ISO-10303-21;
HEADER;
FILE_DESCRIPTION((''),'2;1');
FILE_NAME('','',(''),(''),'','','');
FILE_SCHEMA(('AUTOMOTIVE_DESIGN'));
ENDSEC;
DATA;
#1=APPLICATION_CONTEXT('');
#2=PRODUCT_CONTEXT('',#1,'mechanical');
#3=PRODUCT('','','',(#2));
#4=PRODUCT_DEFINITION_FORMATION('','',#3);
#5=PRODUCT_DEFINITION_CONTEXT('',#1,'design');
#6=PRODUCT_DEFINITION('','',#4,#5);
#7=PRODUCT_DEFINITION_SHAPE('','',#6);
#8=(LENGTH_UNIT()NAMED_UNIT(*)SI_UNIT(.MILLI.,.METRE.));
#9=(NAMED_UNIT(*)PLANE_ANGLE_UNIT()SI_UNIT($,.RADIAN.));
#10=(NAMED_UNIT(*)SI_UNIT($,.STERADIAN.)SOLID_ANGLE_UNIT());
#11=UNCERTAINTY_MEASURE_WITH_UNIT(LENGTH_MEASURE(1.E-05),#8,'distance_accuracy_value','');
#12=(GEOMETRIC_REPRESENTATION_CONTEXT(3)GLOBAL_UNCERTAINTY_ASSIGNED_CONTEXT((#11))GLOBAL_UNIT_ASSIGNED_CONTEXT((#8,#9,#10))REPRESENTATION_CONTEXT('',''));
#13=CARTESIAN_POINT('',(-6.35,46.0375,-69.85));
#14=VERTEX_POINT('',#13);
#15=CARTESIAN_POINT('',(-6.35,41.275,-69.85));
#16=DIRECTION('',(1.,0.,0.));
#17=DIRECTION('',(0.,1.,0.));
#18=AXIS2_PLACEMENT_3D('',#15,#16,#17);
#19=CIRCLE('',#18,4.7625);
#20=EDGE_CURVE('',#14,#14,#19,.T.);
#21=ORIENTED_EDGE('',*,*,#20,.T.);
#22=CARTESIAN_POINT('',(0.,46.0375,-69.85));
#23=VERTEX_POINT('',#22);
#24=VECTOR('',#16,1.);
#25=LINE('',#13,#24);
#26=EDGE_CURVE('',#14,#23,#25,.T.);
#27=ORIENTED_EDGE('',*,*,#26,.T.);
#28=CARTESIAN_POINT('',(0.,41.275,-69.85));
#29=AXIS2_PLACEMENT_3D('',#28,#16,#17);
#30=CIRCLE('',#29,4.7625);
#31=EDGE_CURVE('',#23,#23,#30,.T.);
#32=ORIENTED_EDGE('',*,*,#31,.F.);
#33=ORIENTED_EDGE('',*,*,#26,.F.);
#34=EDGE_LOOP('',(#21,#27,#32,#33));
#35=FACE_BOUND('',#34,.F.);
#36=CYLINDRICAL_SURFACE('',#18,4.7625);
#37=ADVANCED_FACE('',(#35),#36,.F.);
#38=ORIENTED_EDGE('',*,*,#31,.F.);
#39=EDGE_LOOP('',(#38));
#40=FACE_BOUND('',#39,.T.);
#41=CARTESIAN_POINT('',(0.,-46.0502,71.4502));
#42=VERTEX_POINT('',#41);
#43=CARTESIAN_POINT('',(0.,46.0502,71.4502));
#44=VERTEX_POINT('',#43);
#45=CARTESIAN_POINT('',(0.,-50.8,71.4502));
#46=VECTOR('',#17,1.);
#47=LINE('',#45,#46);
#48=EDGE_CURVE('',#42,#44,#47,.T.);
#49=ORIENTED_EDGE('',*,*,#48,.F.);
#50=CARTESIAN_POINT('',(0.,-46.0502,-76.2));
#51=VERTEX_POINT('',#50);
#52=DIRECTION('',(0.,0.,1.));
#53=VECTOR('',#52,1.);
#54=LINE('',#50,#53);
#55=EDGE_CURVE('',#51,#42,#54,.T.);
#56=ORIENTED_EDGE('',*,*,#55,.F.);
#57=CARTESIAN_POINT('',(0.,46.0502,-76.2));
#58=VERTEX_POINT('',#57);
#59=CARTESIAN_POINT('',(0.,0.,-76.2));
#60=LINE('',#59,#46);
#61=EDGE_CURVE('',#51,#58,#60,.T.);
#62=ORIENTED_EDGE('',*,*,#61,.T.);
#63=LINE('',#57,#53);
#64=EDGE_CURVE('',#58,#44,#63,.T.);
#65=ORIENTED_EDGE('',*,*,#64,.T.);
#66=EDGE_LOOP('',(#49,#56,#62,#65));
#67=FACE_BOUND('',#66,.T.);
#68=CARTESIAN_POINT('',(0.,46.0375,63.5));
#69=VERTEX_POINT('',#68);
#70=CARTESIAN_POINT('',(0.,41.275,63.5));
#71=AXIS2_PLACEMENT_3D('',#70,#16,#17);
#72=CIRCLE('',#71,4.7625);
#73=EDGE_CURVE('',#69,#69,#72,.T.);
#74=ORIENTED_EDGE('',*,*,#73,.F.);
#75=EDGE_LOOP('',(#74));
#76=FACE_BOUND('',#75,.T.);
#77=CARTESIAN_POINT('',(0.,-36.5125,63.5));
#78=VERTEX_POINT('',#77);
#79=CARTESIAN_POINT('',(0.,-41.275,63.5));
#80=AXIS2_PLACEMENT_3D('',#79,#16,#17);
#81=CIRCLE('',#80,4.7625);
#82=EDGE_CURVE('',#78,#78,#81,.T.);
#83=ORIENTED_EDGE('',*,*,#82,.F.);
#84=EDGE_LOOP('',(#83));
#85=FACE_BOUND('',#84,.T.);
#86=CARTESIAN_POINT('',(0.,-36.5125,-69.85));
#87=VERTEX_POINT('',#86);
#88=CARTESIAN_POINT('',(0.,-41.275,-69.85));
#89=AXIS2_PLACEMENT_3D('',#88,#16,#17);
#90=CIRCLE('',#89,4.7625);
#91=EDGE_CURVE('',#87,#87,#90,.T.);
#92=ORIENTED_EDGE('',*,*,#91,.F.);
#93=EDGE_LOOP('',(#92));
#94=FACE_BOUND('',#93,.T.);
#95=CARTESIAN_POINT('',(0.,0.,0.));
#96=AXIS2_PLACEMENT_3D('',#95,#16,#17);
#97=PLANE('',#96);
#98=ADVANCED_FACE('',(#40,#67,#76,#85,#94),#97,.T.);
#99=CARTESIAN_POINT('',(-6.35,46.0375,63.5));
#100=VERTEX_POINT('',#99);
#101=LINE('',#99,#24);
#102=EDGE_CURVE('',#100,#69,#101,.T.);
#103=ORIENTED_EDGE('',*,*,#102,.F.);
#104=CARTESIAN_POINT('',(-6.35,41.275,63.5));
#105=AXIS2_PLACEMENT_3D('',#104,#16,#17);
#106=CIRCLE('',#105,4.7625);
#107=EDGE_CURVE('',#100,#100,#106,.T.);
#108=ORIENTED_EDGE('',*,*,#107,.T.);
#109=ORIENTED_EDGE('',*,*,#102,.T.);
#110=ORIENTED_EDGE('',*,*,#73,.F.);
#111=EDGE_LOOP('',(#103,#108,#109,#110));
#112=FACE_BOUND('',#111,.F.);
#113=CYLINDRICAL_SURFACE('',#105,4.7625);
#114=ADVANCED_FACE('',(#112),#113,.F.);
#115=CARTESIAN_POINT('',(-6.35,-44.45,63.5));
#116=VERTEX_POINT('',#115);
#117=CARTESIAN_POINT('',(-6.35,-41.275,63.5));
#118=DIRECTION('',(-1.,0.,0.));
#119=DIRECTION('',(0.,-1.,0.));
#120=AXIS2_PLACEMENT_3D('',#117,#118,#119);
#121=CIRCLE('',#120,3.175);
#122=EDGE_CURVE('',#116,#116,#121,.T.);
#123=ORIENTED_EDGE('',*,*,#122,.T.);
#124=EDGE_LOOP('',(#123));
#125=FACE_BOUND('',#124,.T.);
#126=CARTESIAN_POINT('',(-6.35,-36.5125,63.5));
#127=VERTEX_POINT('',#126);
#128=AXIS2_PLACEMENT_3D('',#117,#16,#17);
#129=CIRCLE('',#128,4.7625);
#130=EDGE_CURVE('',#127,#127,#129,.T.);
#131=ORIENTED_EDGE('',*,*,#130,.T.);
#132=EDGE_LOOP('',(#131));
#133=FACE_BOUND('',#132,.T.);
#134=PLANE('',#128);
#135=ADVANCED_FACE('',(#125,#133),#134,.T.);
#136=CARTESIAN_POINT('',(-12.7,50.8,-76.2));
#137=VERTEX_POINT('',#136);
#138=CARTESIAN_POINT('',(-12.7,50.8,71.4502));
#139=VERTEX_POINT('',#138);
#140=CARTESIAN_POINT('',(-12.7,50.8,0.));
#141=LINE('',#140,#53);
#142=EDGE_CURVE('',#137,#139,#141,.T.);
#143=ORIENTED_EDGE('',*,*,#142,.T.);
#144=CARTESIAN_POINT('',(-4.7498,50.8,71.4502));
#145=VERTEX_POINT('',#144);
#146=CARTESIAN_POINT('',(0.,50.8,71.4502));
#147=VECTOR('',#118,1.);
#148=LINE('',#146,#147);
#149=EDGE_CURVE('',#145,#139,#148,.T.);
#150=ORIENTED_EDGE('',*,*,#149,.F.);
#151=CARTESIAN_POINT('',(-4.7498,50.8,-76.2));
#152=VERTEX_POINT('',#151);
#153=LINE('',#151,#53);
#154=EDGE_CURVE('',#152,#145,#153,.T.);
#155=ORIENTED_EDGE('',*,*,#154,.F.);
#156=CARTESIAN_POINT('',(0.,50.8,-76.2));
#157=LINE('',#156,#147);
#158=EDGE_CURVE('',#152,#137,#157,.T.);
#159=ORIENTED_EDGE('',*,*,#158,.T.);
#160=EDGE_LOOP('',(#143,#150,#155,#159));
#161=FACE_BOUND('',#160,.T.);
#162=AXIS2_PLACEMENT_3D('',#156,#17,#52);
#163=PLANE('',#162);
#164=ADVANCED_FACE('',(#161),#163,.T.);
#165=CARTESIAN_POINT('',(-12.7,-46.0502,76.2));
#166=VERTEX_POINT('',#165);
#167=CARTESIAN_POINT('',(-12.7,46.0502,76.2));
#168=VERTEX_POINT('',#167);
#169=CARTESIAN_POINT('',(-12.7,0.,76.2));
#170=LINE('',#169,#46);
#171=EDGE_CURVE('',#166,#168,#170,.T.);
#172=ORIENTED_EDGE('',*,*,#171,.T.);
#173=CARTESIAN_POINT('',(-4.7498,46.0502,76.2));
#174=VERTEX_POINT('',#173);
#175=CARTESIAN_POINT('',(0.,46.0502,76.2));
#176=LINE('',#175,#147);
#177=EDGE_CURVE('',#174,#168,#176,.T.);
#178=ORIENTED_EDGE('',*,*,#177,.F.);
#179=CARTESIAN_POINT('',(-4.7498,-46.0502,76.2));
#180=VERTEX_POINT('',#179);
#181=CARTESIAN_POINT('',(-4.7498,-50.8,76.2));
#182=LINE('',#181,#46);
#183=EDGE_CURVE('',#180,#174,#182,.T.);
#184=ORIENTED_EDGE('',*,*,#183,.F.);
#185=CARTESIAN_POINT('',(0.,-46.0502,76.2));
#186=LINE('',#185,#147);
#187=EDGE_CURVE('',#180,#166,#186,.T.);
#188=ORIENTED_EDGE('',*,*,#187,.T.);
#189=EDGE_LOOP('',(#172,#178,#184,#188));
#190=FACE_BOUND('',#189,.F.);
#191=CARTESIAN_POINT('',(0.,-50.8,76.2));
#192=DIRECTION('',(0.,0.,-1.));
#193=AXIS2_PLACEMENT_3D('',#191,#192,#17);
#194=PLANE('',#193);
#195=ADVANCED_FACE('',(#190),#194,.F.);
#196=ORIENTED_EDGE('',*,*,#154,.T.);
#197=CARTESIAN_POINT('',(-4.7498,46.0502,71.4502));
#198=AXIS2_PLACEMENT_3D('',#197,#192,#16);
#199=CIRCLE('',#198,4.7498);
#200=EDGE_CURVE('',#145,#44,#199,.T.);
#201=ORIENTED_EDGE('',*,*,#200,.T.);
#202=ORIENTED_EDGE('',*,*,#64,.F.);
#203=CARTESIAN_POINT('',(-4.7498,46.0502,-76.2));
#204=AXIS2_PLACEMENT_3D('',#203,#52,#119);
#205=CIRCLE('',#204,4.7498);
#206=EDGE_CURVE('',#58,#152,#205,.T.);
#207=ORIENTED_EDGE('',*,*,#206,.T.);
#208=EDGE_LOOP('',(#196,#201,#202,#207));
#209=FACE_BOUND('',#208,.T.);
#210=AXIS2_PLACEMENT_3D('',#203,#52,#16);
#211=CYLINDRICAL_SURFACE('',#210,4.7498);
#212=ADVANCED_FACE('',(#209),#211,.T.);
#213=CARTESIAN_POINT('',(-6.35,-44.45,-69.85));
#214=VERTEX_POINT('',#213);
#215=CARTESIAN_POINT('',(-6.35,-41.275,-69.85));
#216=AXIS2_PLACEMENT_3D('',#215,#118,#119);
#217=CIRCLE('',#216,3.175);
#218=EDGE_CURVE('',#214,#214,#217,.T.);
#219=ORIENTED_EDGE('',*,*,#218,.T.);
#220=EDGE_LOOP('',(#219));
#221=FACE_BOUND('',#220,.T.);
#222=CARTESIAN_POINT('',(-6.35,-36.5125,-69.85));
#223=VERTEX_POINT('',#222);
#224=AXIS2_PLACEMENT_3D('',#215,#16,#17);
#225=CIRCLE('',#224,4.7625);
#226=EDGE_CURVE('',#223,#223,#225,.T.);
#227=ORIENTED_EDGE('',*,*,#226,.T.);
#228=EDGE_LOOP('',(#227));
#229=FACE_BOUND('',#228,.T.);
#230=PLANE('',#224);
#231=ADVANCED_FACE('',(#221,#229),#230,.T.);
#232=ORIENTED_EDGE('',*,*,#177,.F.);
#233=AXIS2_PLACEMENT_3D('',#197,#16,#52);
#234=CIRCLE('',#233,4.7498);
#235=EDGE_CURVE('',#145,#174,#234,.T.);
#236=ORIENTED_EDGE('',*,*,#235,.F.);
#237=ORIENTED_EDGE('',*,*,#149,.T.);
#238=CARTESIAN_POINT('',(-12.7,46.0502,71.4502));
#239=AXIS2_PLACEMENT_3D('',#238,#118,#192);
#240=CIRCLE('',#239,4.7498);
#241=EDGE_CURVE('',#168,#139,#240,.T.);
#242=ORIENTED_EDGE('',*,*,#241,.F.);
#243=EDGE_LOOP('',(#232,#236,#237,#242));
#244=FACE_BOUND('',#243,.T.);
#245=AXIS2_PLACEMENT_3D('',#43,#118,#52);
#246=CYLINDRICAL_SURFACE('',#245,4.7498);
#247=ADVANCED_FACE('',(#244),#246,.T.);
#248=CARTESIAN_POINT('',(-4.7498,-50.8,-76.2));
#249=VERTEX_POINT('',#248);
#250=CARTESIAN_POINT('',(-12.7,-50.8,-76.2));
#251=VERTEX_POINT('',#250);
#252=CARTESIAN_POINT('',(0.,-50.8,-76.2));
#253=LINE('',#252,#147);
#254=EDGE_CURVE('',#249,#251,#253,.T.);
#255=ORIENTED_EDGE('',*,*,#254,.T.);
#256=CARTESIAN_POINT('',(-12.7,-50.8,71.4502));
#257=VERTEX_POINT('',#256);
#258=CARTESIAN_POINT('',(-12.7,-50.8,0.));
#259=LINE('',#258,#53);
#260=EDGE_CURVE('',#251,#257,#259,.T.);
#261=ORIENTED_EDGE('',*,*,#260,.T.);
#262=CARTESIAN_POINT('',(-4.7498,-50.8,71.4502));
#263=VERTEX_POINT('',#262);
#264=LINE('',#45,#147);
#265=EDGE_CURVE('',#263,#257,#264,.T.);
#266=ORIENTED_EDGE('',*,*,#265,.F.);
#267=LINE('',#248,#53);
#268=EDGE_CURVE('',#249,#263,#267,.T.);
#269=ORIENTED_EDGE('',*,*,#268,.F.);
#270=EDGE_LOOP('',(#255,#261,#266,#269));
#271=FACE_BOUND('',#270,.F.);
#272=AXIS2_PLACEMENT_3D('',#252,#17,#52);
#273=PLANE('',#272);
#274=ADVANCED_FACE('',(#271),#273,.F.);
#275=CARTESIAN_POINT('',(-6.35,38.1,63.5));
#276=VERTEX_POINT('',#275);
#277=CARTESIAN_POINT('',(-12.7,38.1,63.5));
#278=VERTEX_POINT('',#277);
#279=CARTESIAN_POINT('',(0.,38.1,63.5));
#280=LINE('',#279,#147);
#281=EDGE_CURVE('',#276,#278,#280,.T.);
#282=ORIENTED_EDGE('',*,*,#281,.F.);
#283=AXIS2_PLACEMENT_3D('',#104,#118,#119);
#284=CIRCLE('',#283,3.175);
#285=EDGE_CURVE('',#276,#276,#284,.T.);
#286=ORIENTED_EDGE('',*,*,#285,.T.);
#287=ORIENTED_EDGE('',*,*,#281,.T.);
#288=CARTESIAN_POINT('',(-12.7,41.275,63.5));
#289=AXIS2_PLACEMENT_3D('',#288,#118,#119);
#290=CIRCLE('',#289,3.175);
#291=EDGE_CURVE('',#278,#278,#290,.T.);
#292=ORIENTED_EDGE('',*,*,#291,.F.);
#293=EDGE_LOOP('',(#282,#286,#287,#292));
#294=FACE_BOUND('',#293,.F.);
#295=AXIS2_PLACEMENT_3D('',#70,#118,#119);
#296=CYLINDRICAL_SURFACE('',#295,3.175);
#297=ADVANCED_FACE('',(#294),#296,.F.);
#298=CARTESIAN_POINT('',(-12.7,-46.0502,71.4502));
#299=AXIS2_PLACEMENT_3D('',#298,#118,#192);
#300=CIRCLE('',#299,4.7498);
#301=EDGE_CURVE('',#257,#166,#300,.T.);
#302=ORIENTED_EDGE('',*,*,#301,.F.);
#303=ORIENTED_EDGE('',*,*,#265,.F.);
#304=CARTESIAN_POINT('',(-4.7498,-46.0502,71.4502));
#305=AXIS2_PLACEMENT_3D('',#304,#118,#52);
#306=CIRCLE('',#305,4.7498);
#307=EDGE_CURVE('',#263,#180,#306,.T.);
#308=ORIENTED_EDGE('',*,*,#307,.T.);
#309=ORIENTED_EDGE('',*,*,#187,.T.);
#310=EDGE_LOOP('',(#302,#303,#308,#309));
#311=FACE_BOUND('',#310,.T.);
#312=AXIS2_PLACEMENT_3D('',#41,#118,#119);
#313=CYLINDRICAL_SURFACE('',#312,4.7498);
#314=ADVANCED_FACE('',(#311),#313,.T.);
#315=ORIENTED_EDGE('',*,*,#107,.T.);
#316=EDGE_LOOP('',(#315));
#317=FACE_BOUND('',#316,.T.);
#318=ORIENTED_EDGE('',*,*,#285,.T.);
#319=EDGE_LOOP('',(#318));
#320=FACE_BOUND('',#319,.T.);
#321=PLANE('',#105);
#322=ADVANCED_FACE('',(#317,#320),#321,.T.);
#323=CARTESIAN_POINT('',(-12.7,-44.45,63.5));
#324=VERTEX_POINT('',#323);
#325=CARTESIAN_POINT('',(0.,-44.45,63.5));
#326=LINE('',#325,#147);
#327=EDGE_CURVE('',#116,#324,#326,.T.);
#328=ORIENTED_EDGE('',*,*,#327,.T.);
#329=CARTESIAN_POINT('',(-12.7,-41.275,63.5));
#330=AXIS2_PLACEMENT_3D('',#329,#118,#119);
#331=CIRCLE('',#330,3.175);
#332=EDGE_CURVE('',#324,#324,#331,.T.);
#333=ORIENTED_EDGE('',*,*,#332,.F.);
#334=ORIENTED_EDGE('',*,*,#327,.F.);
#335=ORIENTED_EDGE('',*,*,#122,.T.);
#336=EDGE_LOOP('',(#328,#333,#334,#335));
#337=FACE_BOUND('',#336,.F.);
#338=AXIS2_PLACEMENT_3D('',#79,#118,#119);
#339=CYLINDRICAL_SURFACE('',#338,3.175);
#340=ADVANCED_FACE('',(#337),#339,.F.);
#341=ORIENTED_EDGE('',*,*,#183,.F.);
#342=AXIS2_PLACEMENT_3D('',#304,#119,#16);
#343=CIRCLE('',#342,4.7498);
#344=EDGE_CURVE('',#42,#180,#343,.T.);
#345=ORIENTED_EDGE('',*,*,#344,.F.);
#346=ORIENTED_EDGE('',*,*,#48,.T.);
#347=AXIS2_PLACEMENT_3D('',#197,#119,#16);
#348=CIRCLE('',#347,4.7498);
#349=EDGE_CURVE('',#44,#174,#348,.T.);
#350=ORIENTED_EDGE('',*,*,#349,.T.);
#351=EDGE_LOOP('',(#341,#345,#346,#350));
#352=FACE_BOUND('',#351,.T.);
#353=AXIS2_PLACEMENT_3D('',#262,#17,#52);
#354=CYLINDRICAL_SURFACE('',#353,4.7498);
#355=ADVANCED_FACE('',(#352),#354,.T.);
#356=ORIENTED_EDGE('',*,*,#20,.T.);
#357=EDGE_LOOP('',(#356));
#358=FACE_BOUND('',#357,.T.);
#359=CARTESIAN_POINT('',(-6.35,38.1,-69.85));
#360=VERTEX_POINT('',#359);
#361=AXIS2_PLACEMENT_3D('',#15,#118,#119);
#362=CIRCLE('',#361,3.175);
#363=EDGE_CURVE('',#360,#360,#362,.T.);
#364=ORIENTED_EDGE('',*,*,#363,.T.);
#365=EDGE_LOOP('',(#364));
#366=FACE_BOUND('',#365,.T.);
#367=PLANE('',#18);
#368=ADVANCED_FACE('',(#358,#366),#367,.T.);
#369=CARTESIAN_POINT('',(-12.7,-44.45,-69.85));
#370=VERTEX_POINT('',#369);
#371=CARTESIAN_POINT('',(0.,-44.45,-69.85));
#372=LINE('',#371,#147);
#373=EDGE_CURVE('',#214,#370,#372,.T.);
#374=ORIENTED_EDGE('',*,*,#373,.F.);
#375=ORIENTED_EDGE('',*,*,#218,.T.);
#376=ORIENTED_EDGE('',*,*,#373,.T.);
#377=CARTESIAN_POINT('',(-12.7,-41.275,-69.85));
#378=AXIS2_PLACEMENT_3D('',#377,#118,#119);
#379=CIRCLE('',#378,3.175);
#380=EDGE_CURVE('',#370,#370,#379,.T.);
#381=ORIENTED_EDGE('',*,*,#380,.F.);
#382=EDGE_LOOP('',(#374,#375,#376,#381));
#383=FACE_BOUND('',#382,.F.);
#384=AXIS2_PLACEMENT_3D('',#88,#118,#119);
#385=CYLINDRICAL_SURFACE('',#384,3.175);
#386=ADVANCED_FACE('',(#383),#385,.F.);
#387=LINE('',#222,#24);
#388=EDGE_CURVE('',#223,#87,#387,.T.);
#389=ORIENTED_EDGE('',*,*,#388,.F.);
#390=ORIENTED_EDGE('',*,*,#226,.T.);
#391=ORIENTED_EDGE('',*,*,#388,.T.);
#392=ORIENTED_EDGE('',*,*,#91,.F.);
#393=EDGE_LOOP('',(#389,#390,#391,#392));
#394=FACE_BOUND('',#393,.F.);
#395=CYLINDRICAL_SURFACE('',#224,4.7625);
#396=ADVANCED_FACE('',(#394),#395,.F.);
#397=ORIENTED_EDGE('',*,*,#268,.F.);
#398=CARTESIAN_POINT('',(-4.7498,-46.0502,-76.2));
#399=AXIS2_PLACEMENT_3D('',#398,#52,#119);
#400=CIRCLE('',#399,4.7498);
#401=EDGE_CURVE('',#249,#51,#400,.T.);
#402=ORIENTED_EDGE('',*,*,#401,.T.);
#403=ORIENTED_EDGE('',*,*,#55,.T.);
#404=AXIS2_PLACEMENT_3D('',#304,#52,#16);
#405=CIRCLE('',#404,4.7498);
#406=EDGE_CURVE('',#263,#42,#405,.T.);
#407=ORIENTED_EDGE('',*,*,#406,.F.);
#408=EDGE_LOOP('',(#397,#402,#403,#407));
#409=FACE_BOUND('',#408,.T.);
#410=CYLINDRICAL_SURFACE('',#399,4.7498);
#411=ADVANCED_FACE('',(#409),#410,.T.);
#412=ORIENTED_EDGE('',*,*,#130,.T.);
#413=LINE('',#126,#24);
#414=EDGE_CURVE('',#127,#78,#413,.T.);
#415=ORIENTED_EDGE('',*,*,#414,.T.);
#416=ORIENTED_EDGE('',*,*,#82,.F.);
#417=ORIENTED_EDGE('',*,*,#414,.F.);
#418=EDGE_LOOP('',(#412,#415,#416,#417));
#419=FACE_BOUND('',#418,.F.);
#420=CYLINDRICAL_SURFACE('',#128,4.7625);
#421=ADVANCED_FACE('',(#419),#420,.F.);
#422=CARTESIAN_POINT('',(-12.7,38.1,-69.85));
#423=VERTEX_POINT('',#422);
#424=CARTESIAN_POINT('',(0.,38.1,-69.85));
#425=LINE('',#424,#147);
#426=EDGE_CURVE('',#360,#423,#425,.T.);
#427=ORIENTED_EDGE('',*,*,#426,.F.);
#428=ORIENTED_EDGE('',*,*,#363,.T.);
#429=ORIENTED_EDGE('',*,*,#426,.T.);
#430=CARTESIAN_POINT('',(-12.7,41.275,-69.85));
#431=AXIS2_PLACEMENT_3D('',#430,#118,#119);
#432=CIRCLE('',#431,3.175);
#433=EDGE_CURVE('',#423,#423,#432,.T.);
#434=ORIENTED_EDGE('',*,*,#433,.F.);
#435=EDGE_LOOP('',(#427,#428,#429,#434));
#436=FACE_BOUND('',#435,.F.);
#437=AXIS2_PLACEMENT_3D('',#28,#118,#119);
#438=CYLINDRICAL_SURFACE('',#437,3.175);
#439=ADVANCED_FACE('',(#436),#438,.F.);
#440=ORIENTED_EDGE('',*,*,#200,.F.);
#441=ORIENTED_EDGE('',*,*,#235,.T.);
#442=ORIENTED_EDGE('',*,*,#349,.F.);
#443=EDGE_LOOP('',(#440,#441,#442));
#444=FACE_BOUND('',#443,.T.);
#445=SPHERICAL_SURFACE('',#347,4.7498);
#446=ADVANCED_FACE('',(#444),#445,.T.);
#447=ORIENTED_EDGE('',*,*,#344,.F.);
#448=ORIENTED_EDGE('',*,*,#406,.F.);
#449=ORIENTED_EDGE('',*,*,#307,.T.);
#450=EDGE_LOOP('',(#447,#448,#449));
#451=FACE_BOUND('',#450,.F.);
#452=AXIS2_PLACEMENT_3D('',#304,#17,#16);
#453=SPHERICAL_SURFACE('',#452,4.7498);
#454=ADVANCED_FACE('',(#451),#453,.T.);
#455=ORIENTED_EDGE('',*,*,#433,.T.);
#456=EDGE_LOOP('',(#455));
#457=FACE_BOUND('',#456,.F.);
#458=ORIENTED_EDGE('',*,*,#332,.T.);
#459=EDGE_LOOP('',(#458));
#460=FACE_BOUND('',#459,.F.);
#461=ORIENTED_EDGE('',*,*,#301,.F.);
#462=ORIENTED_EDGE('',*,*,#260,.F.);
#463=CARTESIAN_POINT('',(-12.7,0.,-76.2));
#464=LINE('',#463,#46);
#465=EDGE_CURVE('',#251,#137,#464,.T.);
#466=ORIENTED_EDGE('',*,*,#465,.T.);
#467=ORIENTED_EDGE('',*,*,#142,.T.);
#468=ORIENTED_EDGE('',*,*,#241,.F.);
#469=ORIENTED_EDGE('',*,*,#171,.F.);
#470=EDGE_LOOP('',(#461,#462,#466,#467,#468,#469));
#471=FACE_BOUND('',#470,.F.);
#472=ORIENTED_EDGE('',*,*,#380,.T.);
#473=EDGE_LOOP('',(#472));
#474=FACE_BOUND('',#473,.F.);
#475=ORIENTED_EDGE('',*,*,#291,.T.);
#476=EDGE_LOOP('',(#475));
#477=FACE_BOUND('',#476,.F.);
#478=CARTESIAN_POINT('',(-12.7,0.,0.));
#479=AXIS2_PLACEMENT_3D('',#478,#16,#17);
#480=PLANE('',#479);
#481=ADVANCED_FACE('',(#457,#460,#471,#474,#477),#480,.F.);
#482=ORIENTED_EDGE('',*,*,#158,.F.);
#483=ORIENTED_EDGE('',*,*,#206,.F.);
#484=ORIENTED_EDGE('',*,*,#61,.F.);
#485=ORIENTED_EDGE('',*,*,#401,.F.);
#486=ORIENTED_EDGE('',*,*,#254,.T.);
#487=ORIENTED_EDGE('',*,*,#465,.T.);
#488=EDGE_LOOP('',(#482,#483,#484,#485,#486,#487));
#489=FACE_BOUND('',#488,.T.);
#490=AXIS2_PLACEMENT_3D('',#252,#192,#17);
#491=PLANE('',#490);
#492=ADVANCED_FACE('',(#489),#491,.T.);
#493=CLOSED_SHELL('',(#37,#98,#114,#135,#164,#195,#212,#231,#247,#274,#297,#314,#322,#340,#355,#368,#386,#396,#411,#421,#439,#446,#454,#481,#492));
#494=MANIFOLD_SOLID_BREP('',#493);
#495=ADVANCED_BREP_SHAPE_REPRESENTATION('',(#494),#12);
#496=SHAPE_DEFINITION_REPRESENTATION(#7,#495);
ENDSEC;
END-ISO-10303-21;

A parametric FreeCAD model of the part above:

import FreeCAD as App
import Part
import Sketcher

V = App.Vector
Q = App.Units.Quantity


def edges_at(feature, points):
    """Names of the edges that pass closest to the given points."""
    edges = feature.Shape.Edges
    near = lambda p: min(range(len(edges)), key=lambda i: edges[i].distToShape(Part.Vertex(*p))[0])
    return sorted({f"Edge{near(p) + 1}" for p in points})


def add_polygon(sketch, points):
    """Adds a closed chain of lines whose ends are joined by coincident constraints."""
    first, n = sketch.GeometryCount, len(points)
    for a, b in zip(points, points[1:] + points[:1]):
        sketch.addGeometry(Part.LineSegment(App.Vector(*a, 0), App.Vector(*b, 0)), False)
    for i in range(n):
        sketch.addConstraint(Sketcher.Constraint("Coincident", first + i, 2, first + (i + 1) % n, 1))

doc = App.newDocument("Part")
body = doc.addObject("PartDesign::Body", "Body")

# Sketch on YZ plane
sketch1 = body.newObject("Sketcher::SketchObject", "Sketch")
sketch1.AttachmentSupport = (doc.getObject("YZ_Plane"), [""])
sketch1.MapMode = "FlatFace"
add_polygon(sketch1, [(-50.8, 76.2), (-50.8, -76.2), (50.8, -76.2), (50.8, 76.2)])  # lines 0-3
sketch1.addConstraint([
    Sketcher.Constraint("Vertical", 0),
    Sketcher.Constraint("Horizontal", 1),
    Sketcher.Constraint("Vertical", 2),
    Sketcher.Constraint("Horizontal", 3),
    Sketcher.Constraint("Symmetric", 0, 2, 2, 2, -1, 1),
    Sketcher.Constraint("DistanceX", 1, 1, 1, 2, Q("4 in")),
    Sketcher.Constraint("DistanceY", 0, 2, 0, 1, Q("6 in")),
])
pad1 = body.newObject("PartDesign::Pad", "Pad")
pad1.Profile = sketch1
pad1.Length = Q("0.5 in")
pad1.Reversed = True

# Sketch on YZ plane
sketch2 = body.newObject("Sketcher::SketchObject", "Sketch001")
sketch2.AttachmentSupport = (doc.getObject("YZ_Plane"), [""])
sketch2.MapMode = "FlatFace"
sketch2.addGeometry([
    Part.Circle(V(-41.275, -69.85, 0), V(0, 0, 1), 3.175),
    Part.Circle(V(41.275, -69.85, 0), V(0, 0, 1), 3.175),
    Part.Circle(V(-41.275, 63.5, 0), V(0, 0, 1), 3.175),
    Part.Circle(V(41.275, 63.5, 0), V(0, 0, 1), 3.175),
], False)
sketch2.addConstraint([
    Sketcher.Constraint("Equal", 0, 1),
    Sketcher.Constraint("Equal", 1, 2),
    Sketcher.Constraint("Equal", 2, 3),
    Sketcher.Constraint("Symmetric", 0, 3, 1, 3, -2),
    Sketcher.Constraint("Symmetric", 2, 3, 3, 3, -2),
    Sketcher.Constraint("Vertical", 0, 3, 2, 3),
    Sketcher.Constraint("Diameter", 0, Q("0.25 in")),
    Sketcher.Constraint("DistanceY", -1, 1, 2, 3, Q("2.5 in")),
    Sketcher.Constraint("DistanceY", 0, 3, -1, 1, Q("2.75 in")),
    Sketcher.Constraint("DistanceX", 0, 3, 1, 3, Q("3.25 in")),
])
doc.recompute()
hole = body.newObject("PartDesign::Hole", "Hole")
hole.Profile = sketch2
hole.ThreadType = "None"
hole.Diameter = Q("0.25 in")
hole.DepthType = "ThroughAll"
hole.HoleCutType = "Counterbore"
hole.HoleCutDiameter = Q("0.375 in")
hole.HoleCutDepth = Q("0.25 in")
doc.recompute()

fillet = body.newObject("PartDesign::Fillet", "Fillet")
fillet.Base = (hole, edges_at(hole, [
    (0, 0, 76.2),
    (0, -50.8, 0),
    (0, 50.8, 0),
    (-6.35, -50.8, 76.2),
    (-6.35, 50.8, 76.2),
]))
fillet.Radius = Q("0.187 in")

doc.recompute()
